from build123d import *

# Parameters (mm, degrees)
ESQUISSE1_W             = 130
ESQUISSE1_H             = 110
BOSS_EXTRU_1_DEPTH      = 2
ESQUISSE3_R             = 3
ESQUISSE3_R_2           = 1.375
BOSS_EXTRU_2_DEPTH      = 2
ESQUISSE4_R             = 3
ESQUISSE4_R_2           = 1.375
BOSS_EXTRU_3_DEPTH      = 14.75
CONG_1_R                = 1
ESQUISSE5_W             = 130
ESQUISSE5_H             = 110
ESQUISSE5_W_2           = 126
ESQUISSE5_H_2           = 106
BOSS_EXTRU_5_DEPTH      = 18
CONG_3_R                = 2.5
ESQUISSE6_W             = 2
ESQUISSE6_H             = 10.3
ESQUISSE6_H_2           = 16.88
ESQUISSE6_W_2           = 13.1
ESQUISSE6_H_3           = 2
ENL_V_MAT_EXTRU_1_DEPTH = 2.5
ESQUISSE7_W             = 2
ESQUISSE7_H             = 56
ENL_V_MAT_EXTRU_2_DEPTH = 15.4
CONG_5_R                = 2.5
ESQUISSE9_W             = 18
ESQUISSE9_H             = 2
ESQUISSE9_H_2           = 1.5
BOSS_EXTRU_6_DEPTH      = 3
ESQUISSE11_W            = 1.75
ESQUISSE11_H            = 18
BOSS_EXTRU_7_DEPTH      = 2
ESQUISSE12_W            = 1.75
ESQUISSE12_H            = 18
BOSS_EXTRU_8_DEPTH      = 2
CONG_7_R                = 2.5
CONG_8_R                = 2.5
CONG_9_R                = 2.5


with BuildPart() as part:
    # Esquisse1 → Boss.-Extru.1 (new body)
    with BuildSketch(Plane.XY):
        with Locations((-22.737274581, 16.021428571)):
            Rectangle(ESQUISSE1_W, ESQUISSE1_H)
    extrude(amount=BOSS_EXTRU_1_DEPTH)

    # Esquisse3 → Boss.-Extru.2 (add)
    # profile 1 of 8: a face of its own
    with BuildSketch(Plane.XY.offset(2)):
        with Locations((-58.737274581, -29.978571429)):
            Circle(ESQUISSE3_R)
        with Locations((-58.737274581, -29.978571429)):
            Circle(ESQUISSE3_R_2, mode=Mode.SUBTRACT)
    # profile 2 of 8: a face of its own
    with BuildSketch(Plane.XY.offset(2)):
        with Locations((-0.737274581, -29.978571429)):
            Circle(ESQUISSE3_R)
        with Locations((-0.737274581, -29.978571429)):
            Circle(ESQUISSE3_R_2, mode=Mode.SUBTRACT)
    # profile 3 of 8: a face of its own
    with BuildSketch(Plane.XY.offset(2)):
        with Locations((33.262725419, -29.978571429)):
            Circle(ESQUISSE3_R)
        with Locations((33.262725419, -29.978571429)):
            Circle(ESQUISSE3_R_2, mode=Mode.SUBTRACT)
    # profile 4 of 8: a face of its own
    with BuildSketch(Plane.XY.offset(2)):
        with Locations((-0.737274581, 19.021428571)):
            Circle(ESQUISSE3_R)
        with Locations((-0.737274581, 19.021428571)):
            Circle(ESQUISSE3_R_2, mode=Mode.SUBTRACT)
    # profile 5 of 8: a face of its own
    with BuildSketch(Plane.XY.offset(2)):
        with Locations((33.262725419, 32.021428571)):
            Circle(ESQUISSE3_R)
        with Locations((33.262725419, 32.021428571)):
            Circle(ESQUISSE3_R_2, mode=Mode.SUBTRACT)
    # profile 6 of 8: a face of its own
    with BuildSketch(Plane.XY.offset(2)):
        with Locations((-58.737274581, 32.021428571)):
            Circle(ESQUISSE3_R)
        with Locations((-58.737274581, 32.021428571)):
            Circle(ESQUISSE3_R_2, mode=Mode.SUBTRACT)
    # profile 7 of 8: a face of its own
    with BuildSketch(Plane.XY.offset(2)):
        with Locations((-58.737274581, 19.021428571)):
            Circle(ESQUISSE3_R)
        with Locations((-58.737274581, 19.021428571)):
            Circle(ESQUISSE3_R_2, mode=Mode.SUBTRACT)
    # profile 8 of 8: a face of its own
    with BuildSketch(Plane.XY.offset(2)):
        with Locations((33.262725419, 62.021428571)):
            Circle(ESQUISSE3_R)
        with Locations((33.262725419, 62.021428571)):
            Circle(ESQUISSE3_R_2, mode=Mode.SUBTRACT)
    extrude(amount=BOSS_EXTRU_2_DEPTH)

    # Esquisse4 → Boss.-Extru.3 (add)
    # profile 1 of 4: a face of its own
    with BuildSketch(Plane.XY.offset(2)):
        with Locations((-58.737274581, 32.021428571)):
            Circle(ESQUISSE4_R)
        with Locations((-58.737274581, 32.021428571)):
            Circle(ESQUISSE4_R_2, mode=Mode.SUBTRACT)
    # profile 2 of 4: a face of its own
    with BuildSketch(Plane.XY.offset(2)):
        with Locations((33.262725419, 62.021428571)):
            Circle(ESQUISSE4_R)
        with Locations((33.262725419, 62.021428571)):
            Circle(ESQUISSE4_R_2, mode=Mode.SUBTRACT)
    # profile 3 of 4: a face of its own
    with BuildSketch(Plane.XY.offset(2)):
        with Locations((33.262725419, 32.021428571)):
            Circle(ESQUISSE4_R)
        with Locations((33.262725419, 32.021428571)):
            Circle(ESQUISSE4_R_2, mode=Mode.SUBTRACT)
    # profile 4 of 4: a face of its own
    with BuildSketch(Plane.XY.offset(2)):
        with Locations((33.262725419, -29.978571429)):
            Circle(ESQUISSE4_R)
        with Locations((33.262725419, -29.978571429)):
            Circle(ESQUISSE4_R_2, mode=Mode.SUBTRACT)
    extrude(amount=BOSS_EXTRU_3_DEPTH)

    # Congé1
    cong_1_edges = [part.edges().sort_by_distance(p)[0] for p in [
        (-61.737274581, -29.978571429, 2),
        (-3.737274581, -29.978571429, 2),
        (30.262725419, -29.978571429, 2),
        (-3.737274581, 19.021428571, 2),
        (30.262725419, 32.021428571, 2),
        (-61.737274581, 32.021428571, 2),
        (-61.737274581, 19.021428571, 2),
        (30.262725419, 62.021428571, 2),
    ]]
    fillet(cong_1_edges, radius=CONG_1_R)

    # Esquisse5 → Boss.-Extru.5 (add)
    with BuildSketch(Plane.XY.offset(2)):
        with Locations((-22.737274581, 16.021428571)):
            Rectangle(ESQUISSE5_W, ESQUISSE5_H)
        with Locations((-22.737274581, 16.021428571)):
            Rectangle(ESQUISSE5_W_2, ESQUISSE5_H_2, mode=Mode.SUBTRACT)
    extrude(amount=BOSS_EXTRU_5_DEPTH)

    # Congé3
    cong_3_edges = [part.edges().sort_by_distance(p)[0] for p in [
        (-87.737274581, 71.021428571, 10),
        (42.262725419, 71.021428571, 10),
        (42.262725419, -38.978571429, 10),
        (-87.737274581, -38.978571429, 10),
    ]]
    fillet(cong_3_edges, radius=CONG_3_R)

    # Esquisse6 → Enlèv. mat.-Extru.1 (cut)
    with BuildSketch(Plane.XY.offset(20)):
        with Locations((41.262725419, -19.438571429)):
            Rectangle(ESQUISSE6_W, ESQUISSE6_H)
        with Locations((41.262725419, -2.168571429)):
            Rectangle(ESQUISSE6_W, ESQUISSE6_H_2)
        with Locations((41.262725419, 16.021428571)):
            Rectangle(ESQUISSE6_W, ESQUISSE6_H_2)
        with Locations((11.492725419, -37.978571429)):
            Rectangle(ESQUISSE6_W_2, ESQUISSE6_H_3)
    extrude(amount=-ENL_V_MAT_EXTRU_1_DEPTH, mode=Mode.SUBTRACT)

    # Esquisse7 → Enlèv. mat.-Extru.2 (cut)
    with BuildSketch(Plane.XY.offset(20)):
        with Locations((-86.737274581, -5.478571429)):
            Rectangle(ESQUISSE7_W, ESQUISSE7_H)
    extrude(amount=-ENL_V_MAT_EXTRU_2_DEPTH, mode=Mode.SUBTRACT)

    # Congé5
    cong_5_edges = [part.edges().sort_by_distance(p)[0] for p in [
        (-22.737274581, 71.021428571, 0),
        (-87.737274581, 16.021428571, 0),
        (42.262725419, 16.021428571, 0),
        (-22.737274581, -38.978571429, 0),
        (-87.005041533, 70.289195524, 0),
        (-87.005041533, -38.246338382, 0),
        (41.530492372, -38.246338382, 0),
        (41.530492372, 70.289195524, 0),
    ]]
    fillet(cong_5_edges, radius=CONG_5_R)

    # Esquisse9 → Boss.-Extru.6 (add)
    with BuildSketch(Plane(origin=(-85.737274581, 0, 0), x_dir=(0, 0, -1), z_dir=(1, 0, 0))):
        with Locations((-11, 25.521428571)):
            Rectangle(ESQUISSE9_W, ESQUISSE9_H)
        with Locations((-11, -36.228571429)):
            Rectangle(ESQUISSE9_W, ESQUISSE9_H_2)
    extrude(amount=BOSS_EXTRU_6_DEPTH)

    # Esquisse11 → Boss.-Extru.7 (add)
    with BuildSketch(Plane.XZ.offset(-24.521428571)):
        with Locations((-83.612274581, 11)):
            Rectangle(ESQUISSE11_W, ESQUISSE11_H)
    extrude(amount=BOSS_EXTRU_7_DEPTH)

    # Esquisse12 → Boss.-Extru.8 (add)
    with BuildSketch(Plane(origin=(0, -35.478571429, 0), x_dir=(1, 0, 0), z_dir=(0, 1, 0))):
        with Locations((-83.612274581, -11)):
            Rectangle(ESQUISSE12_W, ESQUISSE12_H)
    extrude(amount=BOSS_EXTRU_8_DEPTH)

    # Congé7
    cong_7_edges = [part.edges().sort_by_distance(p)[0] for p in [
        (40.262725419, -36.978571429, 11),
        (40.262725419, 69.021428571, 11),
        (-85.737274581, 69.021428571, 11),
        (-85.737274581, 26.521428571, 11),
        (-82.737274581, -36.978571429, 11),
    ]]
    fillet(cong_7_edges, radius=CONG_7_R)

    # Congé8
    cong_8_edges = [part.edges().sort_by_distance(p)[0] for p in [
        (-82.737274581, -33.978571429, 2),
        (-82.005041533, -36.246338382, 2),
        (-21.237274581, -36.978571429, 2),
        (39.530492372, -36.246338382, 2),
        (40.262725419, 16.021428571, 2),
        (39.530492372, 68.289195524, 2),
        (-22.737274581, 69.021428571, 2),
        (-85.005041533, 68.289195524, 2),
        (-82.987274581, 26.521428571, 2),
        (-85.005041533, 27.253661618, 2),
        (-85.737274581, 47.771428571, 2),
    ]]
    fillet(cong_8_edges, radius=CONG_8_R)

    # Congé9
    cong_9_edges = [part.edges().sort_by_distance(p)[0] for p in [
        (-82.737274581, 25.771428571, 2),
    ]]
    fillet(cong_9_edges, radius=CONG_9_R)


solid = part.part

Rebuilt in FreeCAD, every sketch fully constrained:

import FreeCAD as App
import Part
import Sketcher

V = App.Vector
Q = App.Units.Quantity


def edges_at(feature, points):
    """Names of the edges that pass closest to the given points."""
    edges = feature.Shape.Edges
    near = lambda p: min(range(len(edges)), key=lambda i: edges[i].distToShape(Part.Vertex(*p))[0])
    return sorted({f"Edge{near(p) + 1}" for p in points})

doc = App.newDocument("Part")
body = doc.addObject("PartDesign::Body", "Body")

# Sketch on XY plane
sketch1 = body.newObject("Sketcher::SketchObject", "Sketch")
sketch1.AttachmentSupport = (doc.getObject("XY_Plane"), [""])
sketch1.MapMode = "FlatFace"
sketch1.addGeometry(Part.LineSegment(V(-87.737275, 71.021429, 0), V(-87.737275, -38.978571, 0)), False)
sketch1.addGeometry(Part.LineSegment(V(-87.737275, -38.978571, 0), V(42.262725, -38.978571, 0)), False)
sketch1.addGeometry(Part.LineSegment(V(42.262725, -38.978571, 0), V(42.262725, 71.021429, 0)), False)
sketch1.addGeometry(Part.LineSegment(V(42.262725, 71.021429, 0), V(-87.737275, 71.021429, 0)), False)
sketch1.addConstraint(Sketcher.Constraint("Coincident", 0, 2, 1, 1))
sketch1.addConstraint(Sketcher.Constraint("Coincident", 1, 2, 2, 1))
sketch1.addConstraint(Sketcher.Constraint("Coincident", 2, 2, 3, 1))
sketch1.addConstraint(Sketcher.Constraint("Coincident", 3, 2, 0, 1))
sketch1.addConstraint(Sketcher.Constraint("Vertical", 0))
sketch1.addConstraint(Sketcher.Constraint("Horizontal", 1))
sketch1.addConstraint(Sketcher.Constraint("Vertical", 2))
sketch1.addConstraint(Sketcher.Constraint("Horizontal", 3))
sketch1.addConstraint(Sketcher.Constraint("DistanceX", 1, 1, 1, 2, Q("130 mm")))
sketch1.addConstraint(Sketcher.Constraint("DistanceY", 0, 2, 0, 1, Q("110 mm")))
sketch1.addConstraint(Sketcher.Constraint("DistanceY", 0, 2, -1, 1, Q("38.978571 mm")))
sketch1.addConstraint(Sketcher.Constraint("DistanceX", 0, 2, -1, 1, Q("87.737275 mm")))
pad1 = body.newObject("PartDesign::Pad", "Pad")
pad1.Profile = sketch1
pad1.Length = 2

# Sketch on XY plane
sketch2 = body.newObject("Sketcher::SketchObject", "Sketch001")
sketch2.AttachmentSupport = (doc.getObject("XY_Plane"), [""])
sketch2.MapMode = "FlatFace"
sketch2.AttachmentOffset = App.Placement(V(0, 0, 2), App.Rotation())
sketch2.addGeometry(Part.Circle(V(-58.737275, -29.978571, 0), V(0, 0, 1), 3), False)
sketch2.addGeometry(Part.Circle(V(-58.737275, -29.978571, 0), V(0, 0, 1), 1.375), False)
sketch2.addGeometry(Part.Circle(V(-0.737275, -29.978571, 0), V(0, 0, 1), 3), False)
sketch2.addGeometry(Part.Circle(V(-0.737275, -29.978571, 0), V(0, 0, 1), 1.375), False)
sketch2.addGeometry(Part.Circle(V(33.262725, -29.978571, 0), V(0, 0, 1), 3), False)
sketch2.addGeometry(Part.Circle(V(33.262725, -29.978571, 0), V(0, 0, 1), 1.375), False)
sketch2.addGeometry(Part.Circle(V(-0.737275, 19.021429, 0), V(0, 0, 1), 3), False)
sketch2.addGeometry(Part.Circle(V(-0.737275, 19.021429, 0), V(0, 0, 1), 1.375), False)
sketch2.addGeometry(Part.Circle(V(33.262725, 32.021429, 0), V(0, 0, 1), 3), False)
sketch2.addGeometry(Part.Circle(V(33.262725, 32.021429, 0), V(0, 0, 1), 1.375), False)
sketch2.addGeometry(Part.Circle(V(-58.737275, 32.021429, 0), V(0, 0, 1), 3), False)
sketch2.addGeometry(Part.Circle(V(-58.737275, 32.021429, 0), V(0, 0, 1), 1.375), False)
sketch2.addGeometry(Part.Circle(V(-58.737275, 19.021429, 0), V(0, 0, 1), 3), False)
sketch2.addGeometry(Part.Circle(V(-58.737275, 19.021429, 0), V(0, 0, 1), 1.375), False)
sketch2.addGeometry(Part.Circle(V(33.262725, 62.021429, 0), V(0, 0, 1), 3), False)
sketch2.addGeometry(Part.Circle(V(33.262725, 62.021429, 0), V(0, 0, 1), 1.375), False)
sketch2.addConstraint(Sketcher.Constraint("Coincident", 1, 3, 0, 3))
sketch2.addConstraint(Sketcher.Constraint("Coincident", 3, 3, 2, 3))
sketch2.addConstraint(Sketcher.Constraint("Coincident", 5, 3, 4, 3))
sketch2.addConstraint(Sketcher.Constraint("Coincident", 7, 3, 6, 3))
sketch2.addConstraint(Sketcher.Constraint("Coincident", 9, 3, 8, 3))
sketch2.addConstraint(Sketcher.Constraint("Coincident", 11, 3, 10, 3))
sketch2.addConstraint(Sketcher.Constraint("Coincident", 13, 3, 12, 3))
sketch2.addConstraint(Sketcher.Constraint("Coincident", 15, 3, 14, 3))
sketch2.addConstraint(Sketcher.Constraint("Equal", 0, 2))
sketch2.addConstraint(Sketcher.Constraint("Equal", 1, 3))
sketch2.addConstraint(Sketcher.Constraint("Equal", 2, 4))
sketch2.addConstraint(Sketcher.Constraint("Equal", 3, 5))
sketch2.addConstraint(Sketcher.Constraint("Equal", 4, 6))
sketch2.addConstraint(Sketcher.Constraint("Equal", 5, 7))
sketch2.addConstraint(Sketcher.Constraint("Equal", 6, 8))
sketch2.addConstraint(Sketcher.Constraint("Equal", 7, 9))
sketch2.addConstraint(Sketcher.Constraint("Equal", 8, 10))
sketch2.addConstraint(Sketcher.Constraint("Equal", 9, 11))
sketch2.addConstraint(Sketcher.Constraint("Equal", 10, 12))
sketch2.addConstraint(Sketcher.Constraint("Equal", 11, 13))
sketch2.addConstraint(Sketcher.Constraint("Equal", 12, 14))
sketch2.addConstraint(Sketcher.Constraint("Equal", 13, 15))
sketch2.addConstraint(Sketcher.Constraint("Horizontal", 1, 3, 2, 3))
sketch2.addConstraint(Sketcher.Constraint("Horizontal", 3, 3, 4, 3))
sketch2.addConstraint(Sketcher.Constraint("Horizontal", 9, 3, 10, 3))
sketch2.addConstraint(Sketcher.Constraint("Horizontal", 7, 3, 12, 3))
sketch2.addConstraint(Sketcher.Constraint("Vertical", 3, 3, 6, 3))
sketch2.addConstraint(Sketcher.Constraint("Vertical", 5, 3, 8, 3))
sketch2.addConstraint(Sketcher.Constraint("Vertical", 1, 3, 10, 3))
sketch2.addConstraint(Sketcher.Constraint("Vertical", 11, 3, 12, 3))
sketch2.addConstraint(Sketcher.Constraint("Vertical", 9, 3, 14, 3))
sketch2.addConstraint(Sketcher.Constraint("Diameter", 0, Q("6 mm")))
sketch2.addConstraint(Sketcher.Constraint("Diameter", 1, Q("2.75 mm")))
sketch2.addConstraint(Sketcher.Constraint("DistanceX", 0, 3, 2, 3, Q("58 mm")))
sketch2.addConstraint(Sketcher.Constraint("DistanceX", 2, 3, 4, 3, Q("34 mm")))
sketch2.addConstraint(Sketcher.Constraint("DistanceY", 2, 3, 6, 3, Q("49 mm")))
sketch2.addConstraint(Sketcher.Constraint("DistanceY", 6, 3, 8, 3, Q("13 mm")))
sketch2.addConstraint(Sketcher.Constraint("DistanceY", 8, 3, 14, 3, Q("30 mm")))
sketch2.addConstraint(Sketcher.Constraint("DistanceY", 0, 3, -1, 1, Q("29.978571 mm")))
sketch2.addConstraint(Sketcher.Constraint("DistanceX", 0, 3, -1, 1, Q("58.737275 mm")))
pad2 = body.newObject("PartDesign::Pad", "Pad001")
pad2.Profile = sketch2
pad2.Length = 2

# Sketch on XY plane
sketch3 = body.newObject("Sketcher::SketchObject", "Sketch002")
sketch3.AttachmentSupport = (doc.getObject("XY_Plane"), [""])
sketch3.MapMode = "FlatFace"
sketch3.AttachmentOffset = App.Placement(V(0, 0, 2), App.Rotation())
sketch3.addGeometry(Part.Circle(V(-58.737275, 32.021429, 0), V(0, 0, 1), 3), False)
sketch3.addGeometry(Part.Circle(V(-58.737275, 32.021429, 0), V(0, 0, 1), 1.375), False)
sketch3.addGeometry(Part.Circle(V(33.262725, 62.021429, 0), V(0, 0, 1), 3), False)
sketch3.addGeometry(Part.Circle(V(33.262725, 62.021429, 0), V(0, 0, 1), 1.375), False)
sketch3.addGeometry(Part.Circle(V(33.262725, 32.021429, 0), V(0, 0, 1), 3), False)
sketch3.addGeometry(Part.Circle(V(33.262725, 32.021429, 0), V(0, 0, 1), 1.375), False)
sketch3.addGeometry(Part.Circle(V(33.262725, -29.978571, 0), V(0, 0, 1), 3), False)
sketch3.addGeometry(Part.Circle(V(33.262725, -29.978571, 0), V(0, 0, 1), 1.375), False)
sketch3.addConstraint(Sketcher.Constraint("Coincident", 1, 3, 0, 3))
sketch3.addConstraint(Sketcher.Constraint("Coincident", 3, 3, 2, 3))
sketch3.addConstraint(Sketcher.Constraint("Coincident", 5, 3, 4, 3))
sketch3.addConstraint(Sketcher.Constraint("Coincident", 7, 3, 6, 3))
sketch3.addConstraint(Sketcher.Constraint("Equal", 0, 2))
sketch3.addConstraint(Sketcher.Constraint("Equal", 1, 3))
sketch3.addConstraint(Sketcher.Constraint("Equal", 2, 4))
sketch3.addConstraint(Sketcher.Constraint("Equal", 3, 5))
sketch3.addConstraint(Sketcher.Constraint("Equal", 4, 6))
sketch3.addConstraint(Sketcher.Constraint("Equal", 5, 7))
sketch3.addConstraint(Sketcher.Constraint("Horizontal", 1, 3, 4, 3))
sketch3.addConstraint(Sketcher.Constraint("Vertical", 3, 3, 4, 3))
sketch3.addConstraint(Sketcher.Constraint("Vertical", 5, 3, 6, 3))
sketch3.addConstraint(Sketcher.Constraint("Diameter", 0, Q("6 mm")))
sketch3.addConstraint(Sketcher.Constraint("Diameter", 1, Q("2.75 mm")))
sketch3.addConstraint(Sketcher.Constraint("DistanceX", 0, 3, 2, 3, Q("92 mm")))
sketch3.addConstraint(Sketcher.Constraint("DistanceY", 0, 3, 2, 3, Q("30 mm")))
sketch3.addConstraint(Sketcher.Constraint("DistanceY", 6, 3, 4, 3, Q("62 mm")))
sketch3.addConstraint(Sketcher.Constraint("DistanceY", -1, 1, 0, 3, Q("32.021429 mm")))
sketch3.addConstraint(Sketcher.Constraint("DistanceX", 0, 3, -1, 1, Q("58.737275 mm")))
pad3 = body.newObject("PartDesign::Pad", "Pad002")
pad3.Profile = sketch3
pad3.Length = 14.75
doc.recompute()

fillet = body.newObject("PartDesign::Fillet", "Fillet")
fillet.Base = (pad3, edges_at(pad3, [
    (-61.737, -29.979, 2),
    (-3.737, -29.979, 2),
    (30.263, -29.979, 2),
    (-3.737, 19.021, 2),
    (30.263, 32.021, 2),
    (-61.737, 32.021, 2),
    (-61.737, 19.021, 2),
    (30.263, 62.021, 2),
]))
fillet.Radius = 1

# Sketch on XY plane
sketch4 = body.newObject("Sketcher::SketchObject", "Sketch003")
sketch4.AttachmentSupport = (doc.getObject("XY_Plane"), [""])
sketch4.MapMode = "FlatFace"
sketch4.AttachmentOffset = App.Placement(V(0, 0, 2), App.Rotation())
sketch4.addGeometry(Part.LineSegment(V(-87.737275, 71.021429, 0), V(-87.737275, -38.978571, 0)), False)
sketch4.addGeometry(Part.LineSegment(V(-87.737275, -38.978571, 0), V(42.262725, -38.978571, 0)), False)
sketch4.addGeometry(Part.LineSegment(V(42.262725, -38.978571, 0), V(42.262725, 71.021429, 0)), False)
sketch4.addGeometry(Part.LineSegment(V(42.262725, 71.021429, 0), V(-87.737275, 71.021429, 0)), False)
sketch4.addGeometry(Part.LineSegment(V(40.262725, -36.978571, 0), V(-85.737275, -36.978571, 0)), False)
sketch4.addGeometry(Part.LineSegment(V(-85.737275, -36.978571, 0), V(-85.737275, 69.021429, 0)), False)
sketch4.addGeometry(Part.LineSegment(V(-85.737275, 69.021429, 0), V(40.262725, 69.021429, 0)), False)
sketch4.addGeometry(Part.LineSegment(V(40.262725, 69.021429, 0), V(40.262725, -36.978571, 0)), False)
sketch4.addConstraint(Sketcher.Constraint("Coincident", 0, 2, 1, 1))
sketch4.addConstraint(Sketcher.Constraint("Coincident", 1, 2, 2, 1))
sketch4.addConstraint(Sketcher.Constraint("Coincident", 2, 2, 3, 1))
sketch4.addConstraint(Sketcher.Constraint("Coincident", 3, 2, 0, 1))
sketch4.addConstraint(Sketcher.Constraint("Coincident", 4, 2, 5, 1))
sketch4.addConstraint(Sketcher.Constraint("Coincident", 5, 2, 6, 1))
sketch4.addConstraint(Sketcher.Constraint("Coincident", 6, 2, 7, 1))
sketch4.addConstraint(Sketcher.Constraint("Coincident", 7, 2, 4, 1))
sketch4.addConstraint(Sketcher.Constraint("Vertical", 0))
sketch4.addConstraint(Sketcher.Constraint("Horizontal", 1))
sketch4.addConstraint(Sketcher.Constraint("Vertical", 2))
sketch4.addConstraint(Sketcher.Constraint("Horizontal", 3))
sketch4.addConstraint(Sketcher.Constraint("Horizontal", 4))
sketch4.addConstraint(Sketcher.Constraint("Vertical", 5))
sketch4.addConstraint(Sketcher.Constraint("Horizontal", 6))
sketch4.addConstraint(Sketcher.Constraint("Vertical", 7))
sketch4.addConstraint(Sketcher.Constraint("DistanceX", 1, 1, 1, 2, Q("130 mm")))
sketch4.addConstraint(Sketcher.Constraint("DistanceX", 4, 2, 4, 1, Q("126 mm")))
sketch4.addConstraint(Sketcher.Constraint("DistanceY", 0, 2, 0, 1, Q("110 mm")))
sketch4.addConstraint(Sketcher.Constraint("DistanceY", 5, 1, 5, 2, Q("106 mm")))
sketch4.addConstraint(Sketcher.Constraint("DistanceX", 0, 2, 4, 2, Q("2 mm")))
sketch4.addConstraint(Sketcher.Constraint("DistanceY", 0, 2, 4, 2, Q("2 mm")))
sketch4.addConstraint(Sketcher.Constraint("DistanceY", 0, 2, -1, 1, Q("38.978571 mm")))
sketch4.addConstraint(Sketcher.Constraint("DistanceX", 0, 2, -1, 1, Q("87.737275 mm")))
pad4 = body.newObject("PartDesign::Pad", "Pad003")
pad4.Profile = sketch4
pad4.Length = 18
doc.recompute()

fillet2 = body.newObject("PartDesign::Fillet", "Fillet001")
fillet2.Base = (pad4, edges_at(pad4, [
    (-87.737, 71.021, 10),
    (42.263, 71.021, 10),
    (42.263, -38.979, 10),
    (-87.737, -38.979, 10),
]))
fillet2.Radius = 2.5

# Sketch on XY plane
sketch5 = body.newObject("Sketcher::SketchObject", "Sketch004")
sketch5.AttachmentSupport = (doc.getObject("XY_Plane"), [""])
sketch5.MapMode = "FlatFace"
sketch5.AttachmentOffset = App.Placement(V(0, 0, 20), App.Rotation())
sketch5.addGeometry(Part.LineSegment(V(40.262725, -14.288571, 0), V(40.262725, -24.588571, 0)), False)
sketch5.addGeometry(Part.LineSegment(V(40.262725, -24.588571, 0), V(42.262725, -24.588571, 0)), False)
sketch5.addGeometry(Part.LineSegment(V(42.262725, -24.588571, 0), V(42.262725, -14.288571, 0)), False)
sketch5.addGeometry(Part.LineSegment(V(42.262725, -14.288571, 0), V(40.262725, -14.288571, 0)), False)
sketch5.addGeometry(Part.LineSegment(V(40.262725, 6.271429, 0), V(40.262725, -10.608571, 0)), False)
sketch5.addGeometry(Part.LineSegment(V(40.262725, -10.608571, 0), V(42.262725, -10.608571, 0)), False)
sketch5.addGeometry(Part.LineSegment(V(42.262725, -10.608571, 0), V(42.262725, 6.271429, 0)), False)
sketch5.addGeometry(Part.LineSegment(V(42.262725, 6.271429, 0), V(40.262725, 6.271429, 0)), False)
sketch5.addGeometry(Part.LineSegment(V(40.262725, 24.461429, 0), V(40.262725, 7.581429, 0)), False)
sketch5.addGeometry(Part.LineSegment(V(40.262725, 7.581429, 0), V(42.262725, 7.581429, 0)), False)
sketch5.addGeometry(Part.LineSegment(V(42.262725, 7.581429, 0), V(42.262725, 24.461429, 0)), False)
sketch5.addGeometry(Part.LineSegment(V(42.262725, 24.461429, 0), V(40.262725, 24.461429, 0)), False)
sketch5.addGeometry(Part.LineSegment(V(4.942725, -36.978571, 0), V(4.942725, -38.978571, 0)), False)
sketch5.addGeometry(Part.LineSegment(V(4.942725, -38.978571, 0), V(18.042725, -38.978571, 0)), False)
sketch5.addGeometry(Part.LineSegment(V(18.042725, -38.978571, 0), V(18.042725, -36.978571, 0)), False)
sketch5.addGeometry(Part.LineSegment(V(18.042725, -36.978571, 0), V(4.942725, -36.978571, 0)), False)
sketch5.addConstraint(Sketcher.Constraint("Coincident", 0, 2, 1, 1))
sketch5.addConstraint(Sketcher.Constraint("Coincident", 1, 2, 2, 1))
sketch5.addConstraint(Sketcher.Constraint("Coincident", 2, 2, 3, 1))
sketch5.addConstraint(Sketcher.Constraint("Coincident", 3, 2, 0, 1))
sketch5.addConstraint(Sketcher.Constraint("Coincident", 4, 2, 5, 1))
sketch5.addConstraint(Sketcher.Constraint("Coincident", 5, 2, 6, 1))
sketch5.addConstraint(Sketcher.Constraint("Coincident", 6, 2, 7, 1))
sketch5.addConstraint(Sketcher.Constraint("Coincident", 7, 2, 4, 1))
sketch5.addConstraint(Sketcher.Constraint("Coincident", 8, 2, 9, 1))
sketch5.addConstraint(Sketcher.Constraint("Coincident", 9, 2, 10, 1))
sketch5.addConstraint(Sketcher.Constraint("Coincident", 10, 2, 11, 1))
sketch5.addConstraint(Sketcher.Constraint("Coincident", 11, 2, 8, 1))
sketch5.addConstraint(Sketcher.Constraint("Coincident", 12, 2, 13, 1))
sketch5.addConstraint(Sketcher.Constraint("Coincident", 13, 2, 14, 1))
sketch5.addConstraint(Sketcher.Constraint("Coincident", 14, 2, 15, 1))
sketch5.addConstraint(Sketcher.Constraint("Coincident", 15, 2, 12, 1))
sketch5.addConstraint(Sketcher.Constraint("Vertical", 0))
sketch5.addConstraint(Sketcher.Constraint("Horizontal", 1))
sketch5.addConstraint(Sketcher.Constraint("Vertical", 2))
sketch5.addConstraint(Sketcher.Constraint("Horizontal", 3))
sketch5.addConstraint(Sketcher.Constraint("Vertical", 4))
sketch5.addConstraint(Sketcher.Constraint("Horizontal", 5))
sketch5.addConstraint(Sketcher.Constraint("Vertical", 6))
sketch5.addConstraint(Sketcher.Constraint("Horizontal", 7))
sketch5.addConstraint(Sketcher.Constraint("Vertical", 8))
sketch5.addConstraint(Sketcher.Constraint("Horizontal", 9))
sketch5.addConstraint(Sketcher.Constraint("Vertical", 10))
sketch5.addConstraint(Sketcher.Constraint("Horizontal", 11))
sketch5.addConstraint(Sketcher.Constraint("Vertical", 12))
sketch5.addConstraint(Sketcher.Constraint("Horizontal", 13))
sketch5.addConstraint(Sketcher.Constraint("Vertical", 14))
sketch5.addConstraint(Sketcher.Constraint("Horizontal", 15))
sketch5.addConstraint(Sketcher.Constraint("Vertical", 3, 2, 4, 2))
sketch5.addConstraint(Sketcher.Constraint("Vertical", 2, 2, 5, 2))
sketch5.addConstraint(Sketcher.Constraint("Vertical", 7, 2, 8, 2))
sketch5.addConstraint(Sketcher.Constraint("Vertical", 6, 2, 9, 2))
sketch5.addConstraint(Sketcher.Constraint("Equal", 6, 8))
sketch5.addConstraint(Sketcher.Constraint("Equal", 11, 12))
sketch5.addConstraint(Sketcher.Constraint("DistanceX", 1, 1, 1, 2, Q("2 mm")))
sketch5.addConstraint(Sketcher.Constraint("DistanceX", 13, 1, 13, 2, Q("13.1 mm")))
sketch5.addConstraint(Sketcher.Constraint("DistanceY", 0, 2, 0, 1, Q("10.3 mm")))
sketch5.addConstraint(Sketcher.Constraint("DistanceY", 4, 2, 4, 1, Q("16.88 mm")))
sketch5.addConstraint(Sketcher.Constraint("DistanceY", 3, 2, 4, 2, Q("3.68 mm")))
sketch5.addConstraint(Sketcher.Constraint("DistanceY", 7, 2, 8, 2, Q("1.31 mm")))
sketch5.addConstraint(Sketcher.Constraint("DistanceX", 12, 2, 0, 2, Q("35.32 mm")))
sketch5.addConstraint(Sketcher.Constraint("DistanceY", 12, 2, 0, 2, Q("14.39 mm")))
sketch5.addConstraint(Sketcher.Constraint("DistanceY", 0, 2, -1, 1, Q("24.588571 mm")))
sketch5.addConstraint(Sketcher.Constraint("DistanceX", -1, 1, 0, 2, Q("40.262725 mm")))
pocket1 = body.newObject("PartDesign::Pocket", "Pocket")
pocket1.Profile = sketch5
pocket1.Length = 2.5

# Sketch on XY plane
sketch6 = body.newObject("Sketcher::SketchObject", "Sketch005")
sketch6.AttachmentSupport = (doc.getObject("XY_Plane"), [""])
sketch6.MapMode = "FlatFace"
sketch6.AttachmentOffset = App.Placement(V(0, 0, 20), App.Rotation())
sketch6.addGeometry(Part.LineSegment(V(-87.737275, 22.521429, 0), V(-87.737275, -33.478571, 0)), False)
sketch6.addGeometry(Part.LineSegment(V(-87.737275, -33.478571, 0), V(-85.737275, -33.478571, 0)), False)
sketch6.addGeometry(Part.LineSegment(V(-85.737275, -33.478571, 0), V(-85.737275, 22.521429, 0)), False)
sketch6.addGeometry(Part.LineSegment(V(-85.737275, 22.521429, 0), V(-87.737275, 22.521429, 0)), False)
sketch6.addConstraint(Sketcher.Constraint("Coincident", 0, 2, 1, 1))
sketch6.addConstraint(Sketcher.Constraint("Coincident", 1, 2, 2, 1))
sketch6.addConstraint(Sketcher.Constraint("Coincident", 2, 2, 3, 1))
sketch6.addConstraint(Sketcher.Constraint("Coincident", 3, 2, 0, 1))
sketch6.addConstraint(Sketcher.Constraint("Vertical", 0))
sketch6.addConstraint(Sketcher.Constraint("Horizontal", 1))
sketch6.addConstraint(Sketcher.Constraint("Vertical", 2))
sketch6.addConstraint(Sketcher.Constraint("Horizontal", 3))
sketch6.addConstraint(Sketcher.Constraint("DistanceX", 1, 1, 1, 2, Q("2 mm")))
sketch6.addConstraint(Sketcher.Constraint("DistanceY", 0, 2, 0, 1, Q("56 mm")))
sketch6.addConstraint(Sketcher.Constraint("DistanceY", 0, 2, -1, 1, Q("33.478571 mm")))
sketch6.addConstraint(Sketcher.Constraint("DistanceX", 0, 2, -1, 1, Q("87.737275 mm")))
pocket2 = body.newObject("PartDesign::Pocket", "Pocket001")
pocket2.Profile = sketch6
pocket2.Length = 15.4
doc.recompute()

fillet3 = body.newObject("PartDesign::Fillet", "Fillet002")
fillet3.Base = (pocket2, edges_at(pocket2, [
    (-22.737, 71.021, 0),
    (-87.737, 16.021, 0),
    (42.263, 16.021, 0),
    (-22.737, -38.979, 0),
    (-87.005, 70.289, 0),
    (-87.005, -38.246, 0),
    (41.53, -38.246, 0),
    (41.53, 70.289, 0),
]))
fillet3.Radius = 2.5

# Sketch on YZ plane
sketch7 = body.newObject("Sketcher::SketchObject", "Sketch006")
sketch7.AttachmentSupport = (doc.getObject("YZ_Plane"), [""])
sketch7.MapMode = "FlatFace"
sketch7.AttachmentOffset = App.Placement(V(0, 0, -85.737275), App.Rotation())
sketch7.addGeometry(Part.LineSegment(V(26.521429, 20, 0), V(24.521429, 20, 0)), False)
sketch7.addGeometry(Part.LineSegment(V(24.521429, 20, 0), V(24.521429, 2, 0)), False)
sketch7.addGeometry(Part.LineSegment(V(24.521429, 2, 0), V(26.521429, 2, 0)), False)
sketch7.addGeometry(Part.LineSegment(V(26.521429, 2, 0), V(26.521429, 20, 0)), False)
sketch7.addGeometry(Part.LineSegment(V(-35.478571, 20, 0), V(-36.978571, 20, 0)), False)
sketch7.addGeometry(Part.LineSegment(V(-36.978571, 20, 0), V(-36.978571, 2, 0)), False)
sketch7.addGeometry(Part.LineSegment(V(-36.978571, 2, 0), V(-35.478571, 2, 0)), False)
sketch7.addGeometry(Part.LineSegment(V(-35.478571, 2, 0), V(-35.478571, 20, 0)), False)
sketch7.addConstraint(Sketcher.Constraint("Coincident", 0, 2, 1, 1))
sketch7.addConstraint(Sketcher.Constraint("Coincident", 1, 2, 2, 1))
sketch7.addConstraint(Sketcher.Constraint("Coincident", 2, 2, 3, 1))
sketch7.addConstraint(Sketcher.Constraint("Coincident", 3, 2, 0, 1))
sketch7.addConstraint(Sketcher.Constraint("Coincident", 4, 2, 5, 1))
sketch7.addConstraint(Sketcher.Constraint("Coincident", 5, 2, 6, 1))
sketch7.addConstraint(Sketcher.Constraint("Coincident", 6, 2, 7, 1))
sketch7.addConstraint(Sketcher.Constraint("Coincident", 7, 2, 4, 1))
sketch7.addConstraint(Sketcher.Constraint("Horizontal", 0))
sketch7.addConstraint(Sketcher.Constraint("Vertical", 1))
sketch7.addConstraint(Sketcher.Constraint("Horizontal", 2))
sketch7.addConstraint(Sketcher.Constraint("Vertical", 3))
sketch7.addConstraint(Sketcher.Constraint("Horizontal", 4))
sketch7.addConstraint(Sketcher.Constraint("Vertical", 5))
sketch7.addConstraint(Sketcher.Constraint("Horizontal", 6))
sketch7.addConstraint(Sketcher.Constraint("Vertical", 7))
sketch7.addConstraint(Sketcher.Constraint("Horizontal", 3, 2, 4, 2))
sketch7.addConstraint(Sketcher.Constraint("Horizontal", 2, 2, 5, 2))
sketch7.addConstraint(Sketcher.Constraint("DistanceX", 0, 2, 0, 1, Q("2 mm")))
sketch7.addConstraint(Sketcher.Constraint("DistanceY", 1, 2, 1, 1, Q("18 mm")))
sketch7.addConstraint(Sketcher.Constraint("DistanceX", 4, 2, 4, 1, Q("1.5 mm")))
sketch7.addConstraint(Sketcher.Constraint("DistanceY", -1, 1, 0, 2, Q("20 mm")))
sketch7.addConstraint(Sketcher.Constraint("DistanceX", 6, 2, 1, 2, Q("60 mm")))
sketch7.addConstraint(Sketcher.Constraint("DistanceX", -1, 1, 0, 2, Q("24.521429 mm")))
pad5 = body.newObject("PartDesign::Pad", "Pad004")
pad5.Profile = sketch7
pad5.Length = 3

# Sketch on XZ plane
sketch8 = body.newObject("Sketcher::SketchObject", "Sketch007")
sketch8.AttachmentSupport = (doc.getObject("XZ_Plane"), [""])
sketch8.MapMode = "FlatFace"
sketch8.AttachmentOffset = App.Placement(V(0, 0, -24.521429), App.Rotation())
sketch8.addGeometry(Part.LineSegment(V(-84.487275, 20, 0), V(-84.487275, 2, 0)), False)
sketch8.addGeometry(Part.LineSegment(V(-84.487275, 2, 0), V(-82.737275, 2, 0)), False)
sketch8.addGeometry(Part.LineSegment(V(-82.737275, 2, 0), V(-82.737275, 20, 0)), False)
sketch8.addGeometry(Part.LineSegment(V(-82.737275, 20, 0), V(-84.487275, 20, 0)), False)
sketch8.addConstraint(Sketcher.Constraint("Coincident", 0, 2, 1, 1))
sketch8.addConstraint(Sketcher.Constraint("Coincident", 1, 2, 2, 1))
sketch8.addConstraint(Sketcher.Constraint("Coincident", 2, 2, 3, 1))
sketch8.addConstraint(Sketcher.Constraint("Coincident", 3, 2, 0, 1))
sketch8.addConstraint(Sketcher.Constraint("Vertical", 0))
sketch8.addConstraint(Sketcher.Constraint("Horizontal", 1))
sketch8.addConstraint(Sketcher.Constraint("Vertical", 2))
sketch8.addConstraint(Sketcher.Constraint("Horizontal", 3))
sketch8.addConstraint(Sketcher.Constraint("DistanceY", 0, 2, 0, 1, Q("18 mm")))
sketch8.addConstraint(Sketcher.Constraint("DistanceY", -1, 1, 0, 2, Q("2 mm")))
sketch8.addConstraint(Sketcher.Constraint("DistanceX", 1, 1, 1, 2, Q("1.75 mm")))
sketch8.addConstraint(Sketcher.Constraint("DistanceX", 0, 2, -1, 1, Q("84.487275 mm")))
pad6 = body.newObject("PartDesign::Pad", "Pad005")
pad6.Profile = sketch8
pad6.Length = 2

# Sketch on XZ plane
sketch9 = body.newObject("Sketcher::SketchObject", "Sketch008")
sketch9.AttachmentSupport = (doc.getObject("XZ_Plane"), [""])
sketch9.MapMode = "FlatFace"
sketch9.AttachmentOffset = App.Placement(V(0, 0, 35.478571), App.Rotation())
sketch9.addGeometry(Part.LineSegment(V(-84.487275, 2, 0), V(-84.487275, 20, 0)), False)
sketch9.addGeometry(Part.LineSegment(V(-84.487275, 20, 0), V(-82.737275, 20, 0)), False)
sketch9.addGeometry(Part.LineSegment(V(-82.737275, 20, 0), V(-82.737275, 2, 0)), False)
sketch9.addGeometry(Part.LineSegment(V(-82.737275, 2, 0), V(-84.487275, 2, 0)), False)
sketch9.addConstraint(Sketcher.Constraint("Coincident", 0, 2, 1, 1))
sketch9.addConstraint(Sketcher.Constraint("Coincident", 1, 2, 2, 1))
sketch9.addConstraint(Sketcher.Constraint("Coincident", 2, 2, 3, 1))
sketch9.addConstraint(Sketcher.Constraint("Coincident", 3, 2, 0, 1))
sketch9.addConstraint(Sketcher.Constraint("Vertical", 0))
sketch9.addConstraint(Sketcher.Constraint("Horizontal", 1))
sketch9.addConstraint(Sketcher.Constraint("Vertical", 2))
sketch9.addConstraint(Sketcher.Constraint("Horizontal", 3))
sketch9.addConstraint(Sketcher.Constraint("DistanceY", 0, 1, 0, 2, Q("18 mm")))
sketch9.addConstraint(Sketcher.Constraint("DistanceY", -1, 1, 0, 2, Q("20 mm")))
sketch9.addConstraint(Sketcher.Constraint("DistanceX", 1, 1, 1, 2, Q("1.75 mm")))
sketch9.addConstraint(Sketcher.Constraint("DistanceX", 0, 2, -1, 1, Q("84.487275 mm")))
pad7 = body.newObject("PartDesign::Pad", "Pad006")
pad7.Profile = sketch9
pad7.Length = 2
pad7.Reversed = True
doc.recompute()

fillet4 = body.newObject("PartDesign::Fillet", "Fillet003")
fillet4.Base = (pad7, edges_at(pad7, [
    (40.263, -36.979, 11),
    (40.263, 69.021, 11),
    (-85.737, 69.021, 11),
    (-85.737, 26.521, 11),
    (-82.737, -36.979, 11),
]))
fillet4.Radius = 2.5
doc.recompute()

fillet5 = body.newObject("PartDesign::Fillet", "Fillet004")
fillet5.Base = (fillet4, edges_at(fillet4, [
    (-82.737, -33.979, 2),
    (-82.005, -36.246, 2),
    (-21.237, -36.979, 2),
    (39.53, -36.246, 2),
    (40.263, 16.021, 2),
    (39.53, 68.289, 2),
    (-22.737, 69.021, 2),
    (-85.005, 68.289, 2),
    (-82.987, 26.521, 2),
    (-85.005, 27.254, 2),
    (-85.737, 47.771, 2),
]))
fillet5.Radius = 2.5
doc.recompute()

fillet6 = body.newObject("PartDesign::Fillet", "Fillet005")
fillet6.Base = (fillet5, edges_at(fillet5, [(-82.737, 25.771, 2)]))
fillet6.Radius = 2.5

doc.recompute()
